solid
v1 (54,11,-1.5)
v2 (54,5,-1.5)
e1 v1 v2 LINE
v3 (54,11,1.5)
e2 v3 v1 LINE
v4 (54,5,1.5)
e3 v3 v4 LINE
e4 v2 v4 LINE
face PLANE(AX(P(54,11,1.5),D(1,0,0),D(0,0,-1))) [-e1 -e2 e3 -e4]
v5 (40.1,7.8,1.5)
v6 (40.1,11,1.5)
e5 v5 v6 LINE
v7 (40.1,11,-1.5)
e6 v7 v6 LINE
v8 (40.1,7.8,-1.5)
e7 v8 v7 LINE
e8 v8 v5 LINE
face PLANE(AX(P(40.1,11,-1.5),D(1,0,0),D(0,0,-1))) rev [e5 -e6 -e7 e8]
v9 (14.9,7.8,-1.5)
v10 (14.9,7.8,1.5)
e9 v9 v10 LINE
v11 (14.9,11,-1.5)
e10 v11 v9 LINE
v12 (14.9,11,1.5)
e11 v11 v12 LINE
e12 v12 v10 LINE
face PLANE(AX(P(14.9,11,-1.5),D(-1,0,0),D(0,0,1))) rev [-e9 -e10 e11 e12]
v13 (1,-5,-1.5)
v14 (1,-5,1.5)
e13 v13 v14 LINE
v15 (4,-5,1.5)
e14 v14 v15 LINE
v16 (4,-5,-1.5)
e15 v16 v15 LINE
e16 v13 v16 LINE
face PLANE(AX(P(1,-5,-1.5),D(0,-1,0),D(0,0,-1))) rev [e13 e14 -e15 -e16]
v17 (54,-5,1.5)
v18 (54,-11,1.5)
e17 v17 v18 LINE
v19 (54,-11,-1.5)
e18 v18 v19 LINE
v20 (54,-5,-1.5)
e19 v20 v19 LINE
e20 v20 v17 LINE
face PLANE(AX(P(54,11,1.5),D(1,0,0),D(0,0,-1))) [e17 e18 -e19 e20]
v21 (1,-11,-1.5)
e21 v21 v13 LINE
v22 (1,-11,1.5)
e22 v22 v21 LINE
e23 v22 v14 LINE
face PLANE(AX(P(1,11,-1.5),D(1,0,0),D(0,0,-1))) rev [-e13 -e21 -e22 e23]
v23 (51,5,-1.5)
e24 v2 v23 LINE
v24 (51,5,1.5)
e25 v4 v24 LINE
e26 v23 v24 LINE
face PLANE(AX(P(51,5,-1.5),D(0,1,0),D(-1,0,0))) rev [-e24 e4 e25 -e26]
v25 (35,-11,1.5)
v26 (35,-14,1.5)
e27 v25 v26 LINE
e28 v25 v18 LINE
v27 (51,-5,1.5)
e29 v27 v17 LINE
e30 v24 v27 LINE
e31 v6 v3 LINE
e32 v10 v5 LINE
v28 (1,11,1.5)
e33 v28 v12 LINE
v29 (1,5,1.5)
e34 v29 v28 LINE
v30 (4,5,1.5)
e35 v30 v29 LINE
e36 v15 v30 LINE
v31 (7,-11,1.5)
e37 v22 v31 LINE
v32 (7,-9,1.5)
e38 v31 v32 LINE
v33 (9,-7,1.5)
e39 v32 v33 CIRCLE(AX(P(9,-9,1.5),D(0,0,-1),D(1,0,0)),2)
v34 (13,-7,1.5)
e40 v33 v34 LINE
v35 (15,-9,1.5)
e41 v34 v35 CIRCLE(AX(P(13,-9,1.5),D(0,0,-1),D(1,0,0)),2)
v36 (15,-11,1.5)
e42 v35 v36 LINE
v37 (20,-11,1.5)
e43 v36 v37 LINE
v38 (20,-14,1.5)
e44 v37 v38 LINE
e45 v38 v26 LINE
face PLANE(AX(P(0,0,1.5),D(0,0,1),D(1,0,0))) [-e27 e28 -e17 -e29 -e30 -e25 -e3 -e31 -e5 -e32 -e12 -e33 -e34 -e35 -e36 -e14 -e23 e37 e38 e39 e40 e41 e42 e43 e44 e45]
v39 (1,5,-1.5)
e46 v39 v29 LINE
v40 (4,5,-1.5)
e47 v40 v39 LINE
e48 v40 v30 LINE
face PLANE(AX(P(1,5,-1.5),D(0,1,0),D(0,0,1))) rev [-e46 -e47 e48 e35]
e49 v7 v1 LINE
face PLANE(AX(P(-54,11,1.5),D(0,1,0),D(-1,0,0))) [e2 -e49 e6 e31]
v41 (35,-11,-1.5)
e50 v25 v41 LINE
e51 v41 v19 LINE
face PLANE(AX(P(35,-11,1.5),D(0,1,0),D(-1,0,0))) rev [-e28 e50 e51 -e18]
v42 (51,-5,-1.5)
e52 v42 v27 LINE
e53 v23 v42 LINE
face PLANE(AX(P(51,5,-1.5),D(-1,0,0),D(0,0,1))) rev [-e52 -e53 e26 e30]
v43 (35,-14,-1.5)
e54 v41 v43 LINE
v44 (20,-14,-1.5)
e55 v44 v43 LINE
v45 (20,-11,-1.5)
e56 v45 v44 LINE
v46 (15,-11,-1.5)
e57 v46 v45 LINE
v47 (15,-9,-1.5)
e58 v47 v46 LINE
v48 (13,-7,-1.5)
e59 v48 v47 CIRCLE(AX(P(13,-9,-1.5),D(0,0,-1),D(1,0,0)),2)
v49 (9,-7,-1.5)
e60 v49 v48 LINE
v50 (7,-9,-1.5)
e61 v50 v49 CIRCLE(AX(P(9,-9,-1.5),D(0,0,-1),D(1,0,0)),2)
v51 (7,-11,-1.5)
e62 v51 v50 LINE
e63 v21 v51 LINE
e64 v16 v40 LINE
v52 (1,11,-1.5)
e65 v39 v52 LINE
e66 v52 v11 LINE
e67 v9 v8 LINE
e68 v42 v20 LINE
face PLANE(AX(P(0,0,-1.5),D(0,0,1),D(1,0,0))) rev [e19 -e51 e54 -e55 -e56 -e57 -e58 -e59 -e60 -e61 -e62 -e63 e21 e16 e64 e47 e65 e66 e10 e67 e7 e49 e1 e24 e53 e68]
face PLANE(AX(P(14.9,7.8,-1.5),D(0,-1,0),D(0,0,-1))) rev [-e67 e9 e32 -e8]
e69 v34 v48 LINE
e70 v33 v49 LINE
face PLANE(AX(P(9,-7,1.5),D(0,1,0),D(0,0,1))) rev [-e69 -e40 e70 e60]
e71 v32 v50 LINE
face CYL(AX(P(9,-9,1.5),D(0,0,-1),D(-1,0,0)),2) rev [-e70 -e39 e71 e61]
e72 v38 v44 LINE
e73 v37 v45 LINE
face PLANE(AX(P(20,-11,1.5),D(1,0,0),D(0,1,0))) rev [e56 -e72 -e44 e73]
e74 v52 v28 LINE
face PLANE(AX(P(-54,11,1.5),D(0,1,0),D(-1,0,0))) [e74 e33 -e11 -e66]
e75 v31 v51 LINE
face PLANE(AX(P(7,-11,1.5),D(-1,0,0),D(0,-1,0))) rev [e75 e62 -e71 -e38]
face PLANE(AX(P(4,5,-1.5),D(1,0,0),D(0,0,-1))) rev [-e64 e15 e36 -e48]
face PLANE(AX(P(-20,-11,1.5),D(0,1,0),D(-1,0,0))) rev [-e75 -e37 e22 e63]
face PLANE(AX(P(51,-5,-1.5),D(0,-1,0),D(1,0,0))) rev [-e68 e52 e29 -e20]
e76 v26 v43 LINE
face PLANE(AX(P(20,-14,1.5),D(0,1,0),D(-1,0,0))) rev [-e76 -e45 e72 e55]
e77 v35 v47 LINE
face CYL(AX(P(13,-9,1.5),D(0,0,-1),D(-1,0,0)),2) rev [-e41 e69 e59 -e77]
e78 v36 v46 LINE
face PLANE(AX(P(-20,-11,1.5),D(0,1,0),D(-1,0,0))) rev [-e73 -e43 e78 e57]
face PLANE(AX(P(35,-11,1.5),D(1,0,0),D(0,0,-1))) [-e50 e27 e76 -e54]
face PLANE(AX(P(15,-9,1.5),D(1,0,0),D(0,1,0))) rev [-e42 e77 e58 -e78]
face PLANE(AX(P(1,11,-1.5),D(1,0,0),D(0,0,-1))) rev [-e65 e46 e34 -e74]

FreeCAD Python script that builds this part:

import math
import FreeCAD as App
import Part
import Sketcher

doc = App.newDocument("Part")
body = doc.addObject("PartDesign::Body", "Body")

sketch1 = body.newObject("Sketcher::SketchObject", "Sketch")
sketch1.AttachmentSupport = (doc.getObject("XY_Plane"), [""])
sketch1.MapMode = "FlatFace"
sketch1.addGeometry([
    Part.LineSegment(App.Vector(-20, -11, 0), App.Vector(20, -11, 0)),
    Part.LineSegment(App.Vector(20, -11, 0), App.Vector(20, -14, 0)),
    Part.LineSegment(App.Vector(20, -14, 0), App.Vector(35, -14, 0)),
    Part.LineSegment(App.Vector(35, -14, 0), App.Vector(35, -11, 0)),
    Part.LineSegment(App.Vector(35, -11, 0), App.Vector(54, -11, 0)),
    Part.LineSegment(App.Vector(54, -11, 0), App.Vector(54, 11, 0)),
    Part.LineSegment(App.Vector(54, 11, 0), App.Vector(-54, 11, 0)),
    Part.LineSegment(App.Vector(-54, 11, 0), App.Vector(-54, -11, 0)),
    Part.LineSegment(App.Vector(-54, -11, 0), App.Vector(-35, -11, 0)),
    Part.LineSegment(App.Vector(-35, -11, 0), App.Vector(-35, -14, 0)),
    Part.LineSegment(App.Vector(-35, -14, 0), App.Vector(-20, -14, 0)),
    Part.LineSegment(App.Vector(-20, -14, 0), App.Vector(-20, -11, 0)),
], False)
sketch1.addConstraint([
    Sketcher.Constraint("Coincident", 0, 2, 1, 1),
    Sketcher.Constraint("Coincident", 1, 2, 2, 1),
    Sketcher.Constraint("Coincident", 2, 2, 3, 1),
    Sketcher.Constraint("Coincident", 3, 2, 4, 1),
    Sketcher.Constraint("Coincident", 4, 2, 5, 1),
    Sketcher.Constraint("Coincident", 5, 2, 6, 1),
    Sketcher.Constraint("Coincident", 6, 2, 7, 1),
    Sketcher.Constraint("Coincident", 7, 2, 8, 1),
    Sketcher.Constraint("Coincident", 8, 2, 9, 1),
    Sketcher.Constraint("Coincident", 9, 2, 10, 1),
    Sketcher.Constraint("Coincident", 10, 2, 11, 1),
    Sketcher.Constraint("Coincident", 11, 2, 0, 1),
    Sketcher.Constraint("Horizontal", 0),
    Sketcher.Constraint("Vertical", 1),
    Sketcher.Constraint("Horizontal", 2),
    Sketcher.Constraint("Vertical", 3),
    Sketcher.Constraint("Horizontal", 4),
    Sketcher.Constraint("Vertical", 5),
    Sketcher.Constraint("Horizontal", 6),
    Sketcher.Constraint("Vertical", 7),
    Sketcher.Constraint("Horizontal", 8),
    Sketcher.Constraint("Vertical", 9),
    Sketcher.Constraint("Horizontal", 10),
    Sketcher.Constraint("Vertical", 11),
    Sketcher.Constraint("Symmetric", 4, 2, 6, 2, -1, 1),
    Sketcher.Constraint("Symmetric", 3, 2, 8, 2, -2),
    Sketcher.Constraint("Symmetric", 1, 2, 10, 2, -2),
    Sketcher.Constraint("Horizontal", 0, 2, 3, 2),
    Sketcher.Constraint("DistanceX", 0, 1, 0, 2, 40.0),
    Sketcher.Constraint("DistanceX", 2, 1, 2, 2, 15.0),
    Sketcher.Constraint("DistanceX", 4, 1, 4, 2, 19.0),
    Sketcher.Constraint("DistanceY", 1, 2, 1, 1, 3.0),
    Sketcher.Constraint("DistanceY", 5, 1, 5, 2, 22.0),
])
pad1 = body.newObject("PartDesign::Pad", "Pad")
pad1.Profile = sketch1
pad1.Length = 3
pad1.Midplane = True

sketch2 = body.newObject("Sketcher::SketchObject", "Sketch001")
sketch2.AttachmentSupport = (doc.getObject("XY_Plane"), [""])
sketch2.MapMode = "FlatFace"
sketch2.AttachmentOffset = App.Placement(App.Vector(0, 0, 1.5), App.Rotation())
sketch2.addGeometry([
    Part.LineSegment(App.Vector(1, 5, 0), App.Vector(1, -5, 0)),
    Part.LineSegment(App.Vector(1, -5, 0), App.Vector(4, -5, 0)),
    Part.LineSegment(App.Vector(4, -5, 0), App.Vector(4, 5, 0)),
    Part.LineSegment(App.Vector(4, 5, 0), App.Vector(1, 5, 0)),
    Part.LineSegment(App.Vector(51, 5, 0), App.Vector(51, -5, 0)),
    Part.LineSegment(App.Vector(51, -5, 0), App.Vector(54, -5, 0)),
    Part.LineSegment(App.Vector(54, -5, 0), App.Vector(54, 5, 0)),
    Part.LineSegment(App.Vector(54, 5, 0), App.Vector(51, 5, 0)),
], False)
sketch2.addConstraint([
    Sketcher.Constraint("Coincident", 0, 2, 1, 1),
    Sketcher.Constraint("Coincident", 1, 2, 2, 1),
    Sketcher.Constraint("Coincident", 2, 2, 3, 1),
    Sketcher.Constraint("Coincident", 3, 2, 0, 1),
    Sketcher.Constraint("Coincident", 4, 2, 5, 1),
    Sketcher.Constraint("Coincident", 5, 2, 6, 1),
    Sketcher.Constraint("Coincident", 6, 2, 7, 1),
    Sketcher.Constraint("Coincident", 7, 2, 4, 1),
    Sketcher.Constraint("Vertical", 0),
    Sketcher.Constraint("Horizontal", 1),
    Sketcher.Constraint("Vertical", 2),
    Sketcher.Constraint("Horizontal", 3),
    Sketcher.Constraint("Vertical", 4),
    Sketcher.Constraint("Horizontal", 5),
    Sketcher.Constraint("Vertical", 6),
    Sketcher.Constraint("Horizontal", 7),
    Sketcher.Constraint("Horizontal", 1, 2, 4, 2),
    Sketcher.Constraint("Horizontal", 3, 2, 6, 2),
    Sketcher.Constraint("Equal", 3, 5),
    Sketcher.Constraint("DistanceX", 1, 1, 1, 2, 3.0),
    Sketcher.Constraint("DistanceY", 0, 2, 0, 1, 10.0),
    Sketcher.Constraint("DistanceX", -1, 1, 0, 2, 1.0),
    Sketcher.Constraint("DistanceY", 0, 2, -1, 1, 5.0),
    Sketcher.Constraint("DistanceX", -1, 1, 4, 2, 51.0),
])
pocket1 = body.newObject("PartDesign::Pocket", "Pocket")
pocket1.Profile = sketch2
pocket1.Type = "ThroughAll"

sketch3 = body.newObject("Sketcher::SketchObject", "Sketch002")
sketch3.AttachmentSupport = (doc.getObject("XY_Plane"), [""])
sketch3.MapMode = "FlatFace"
sketch3.AttachmentOffset = App.Placement(App.Vector(0, 0, 1.5), App.Rotation())
sketch3.addGeometry([
    Part.LineSegment(App.Vector(-54, 11, 0), App.Vector(-54, -14, 0)),
    Part.LineSegment(App.Vector(-54, -14, 0), App.Vector(1, -14, 0)),
    Part.LineSegment(App.Vector(1, -14, 0), App.Vector(1, 11, 0)),
    Part.LineSegment(App.Vector(1, 11, 0), App.Vector(-54, 11, 0)),
], False)
sketch3.addConstraint([
    Sketcher.Constraint("Coincident", 0, 2, 1, 1),
    Sketcher.Constraint("Coincident", 1, 2, 2, 1),
    Sketcher.Constraint("Coincident", 2, 2, 3, 1),
    Sketcher.Constraint("Coincident", 3, 2, 0, 1),
    Sketcher.Constraint("Vertical", 0),
    Sketcher.Constraint("Horizontal", 1),
    Sketcher.Constraint("Vertical", 2),
    Sketcher.Constraint("Horizontal", 3),
    Sketcher.Constraint("DistanceX", 1, 1, 1, 2, 55.0),
    Sketcher.Constraint("DistanceY", 0, 2, 0, 1, 25.0),
    Sketcher.Constraint("DistanceX", 0, 2, -1, 1, 54.0),
    Sketcher.Constraint("DistanceY", 0, 2, -1, 1, 14.0),
])
pocket2 = body.newObject("PartDesign::Pocket", "Pocket001")
pocket2.Profile = sketch3
pocket2.Type = "ThroughAll"

sketch4 = body.newObject("Sketcher::SketchObject", "Sketch003")
sketch4.AttachmentSupport = (doc.getObject("XY_Plane"), [""])
sketch4.MapMode = "FlatFace"
sketch4.AttachmentOffset = App.Placement(App.Vector(0, 0, -1.5), App.Rotation())
sketch4.addGeometry([
    Part.LineSegment(App.Vector(7, -11, 0), App.Vector(7, -9, 0)),
    Part.ArcOfCircle(Part.Circle(App.Vector(9, -9, 0), App.Vector(0, 0, 1), 2), math.radians(90), math.radians(180)),
    Part.LineSegment(App.Vector(9, -7, 0), App.Vector(13, -7, 0)),
    Part.ArcOfCircle(Part.Circle(App.Vector(13, -9, 0), App.Vector(0, 0, 1), 2), math.radians(0), math.radians(90)),
    Part.LineSegment(App.Vector(15, -9, 0), App.Vector(15, -11, 0)),
    Part.LineSegment(App.Vector(15, -11, 0), App.Vector(7, -11, 0)),
], False)
sketch4.addConstraint([
    Sketcher.Constraint("Tangent", 0, 2, 1, 2),
    Sketcher.Constraint("Tangent", 1, 1, 2, 1),
    Sketcher.Constraint("Tangent", 2, 2, 3, 2),
    Sketcher.Constraint("Tangent", 3, 1, 4, 1),
    Sketcher.Constraint("Coincident", 4, 2, 5, 1),
    Sketcher.Constraint("Coincident", 5, 2, 0, 1),
    Sketcher.Constraint("Vertical", 0),
    Sketcher.Constraint("Horizontal", 2),
    Sketcher.Constraint("Vertical", 4),
    Sketcher.Constraint("Horizontal", 5),
    Sketcher.Constraint("Equal", 1, 3),
    Sketcher.Constraint("Radius", 1, 2.0),
    Sketcher.Constraint("DistanceX", 2, 1, 2, 2, 4.0),
    Sketcher.Constraint("DistanceY", 0, 1, 0, 2, 2.0),
    Sketcher.Constraint("DistanceX", -1, 1, 1, 3, 9.0),
    Sketcher.Constraint("DistanceY", 1, 3, -1, 1, 9.0),
])
pocket3 = body.newObject("PartDesign::Pocket", "Pocket002")
pocket3.Profile = sketch4
pocket3.Type = "ThroughAll"
pocket3.Reversed = True

sketch5 = body.newObject("Sketcher::SketchObject", "Sketch004")
sketch5.AttachmentSupport = (doc.getObject("XY_Plane"), [""])
sketch5.MapMode = "FlatFace"
sketch5.AttachmentOffset = App.Placement(App.Vector(0, 0, 1.5), App.Rotation())
sketch5.addGeometry([
    Part.LineSegment(App.Vector(14.9, 11, 0), App.Vector(14.9, 7.8, 0)),
    Part.LineSegment(App.Vector(14.9, 7.8, 0), App.Vector(40.1, 7.8, 0)),
    Part.LineSegment(App.Vector(40.1, 7.8, 0), App.Vector(40.1, 11, 0)),
    Part.LineSegment(App.Vector(40.1, 11, 0), App.Vector(14.9, 11, 0)),
], False)
sketch5.addConstraint([
    Sketcher.Constraint("Coincident", 0, 2, 1, 1),
    Sketcher.Constraint("Coincident", 1, 2, 2, 1),
    Sketcher.Constraint("Coincident", 2, 2, 3, 1),
    Sketcher.Constraint("Coincident", 3, 2, 0, 1),
    Sketcher.Constraint("Vertical", 0),
    Sketcher.Constraint("Horizontal", 1),
    Sketcher.Constraint("Vertical", 2),
    Sketcher.Constraint("Horizontal", 3),
    Sketcher.Constraint("DistanceX", 1, 1, 1, 2, 25.2),
    Sketcher.Constraint("DistanceY", 0, 2, 0, 1, 3.2),
    Sketcher.Constraint("DistanceY", -1, 1, 2, 2, 11.0),
    Sketcher.Constraint("DistanceX", -1, 1, 0, 2, 14.9),
])
pocket4 = body.newObject("PartDesign::Pocket", "Pocket003")
pocket4.Profile = sketch5
pocket4.Type = "ThroughAll"

doc.recompute()
